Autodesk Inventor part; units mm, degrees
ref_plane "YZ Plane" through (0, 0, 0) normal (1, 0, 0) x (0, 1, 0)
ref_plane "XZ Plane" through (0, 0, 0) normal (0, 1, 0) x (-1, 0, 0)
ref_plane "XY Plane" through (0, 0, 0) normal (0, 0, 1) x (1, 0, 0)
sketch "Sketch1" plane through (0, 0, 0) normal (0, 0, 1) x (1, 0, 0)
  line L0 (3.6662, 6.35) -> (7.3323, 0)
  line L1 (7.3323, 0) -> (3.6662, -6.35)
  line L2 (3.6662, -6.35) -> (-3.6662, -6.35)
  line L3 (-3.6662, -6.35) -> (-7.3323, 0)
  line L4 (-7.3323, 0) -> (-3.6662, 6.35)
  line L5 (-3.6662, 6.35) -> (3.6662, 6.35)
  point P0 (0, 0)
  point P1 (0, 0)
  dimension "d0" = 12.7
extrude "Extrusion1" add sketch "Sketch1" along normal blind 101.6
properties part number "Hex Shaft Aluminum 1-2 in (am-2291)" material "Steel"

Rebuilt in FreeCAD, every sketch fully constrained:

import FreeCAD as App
import Part
import Sketcher
Q = App.Units.Quantity


def add_polygon(sketch, points):
    """Adds a closed chain of lines whose ends are joined by coincident constraints."""
    first, n = sketch.GeometryCount, len(points)
    for a, b in zip(points, points[1:] + points[:1]):
        sketch.addGeometry(Part.LineSegment(App.Vector(*a, 0), App.Vector(*b, 0)), False)
    for i in range(n):
        sketch.addConstraint(Sketcher.Constraint("Coincident", first + i, 2, first + (i + 1) % n, 1))

doc = App.newDocument("Part")
params = doc.addObject("Spreadsheet::Sheet", "Params")
for row, (alias, value) in enumerate([
    ("pad1_length", "4 in"),
], start=1):
    params.set(f"A{row}", alias)
    params.set(f"B{row}", "=" + value)
    params.setAlias(f"B{row}", alias)

body = doc.addObject("PartDesign::Body", "Body")

# Sketch on XY plane
sketch1 = body.newObject("Sketcher::SketchObject", "Sketch")
sketch1.AttachmentSupport = (doc.getObject("XY_Plane"), [""])
sketch1.MapMode = "FlatFace"
add_polygon(sketch1, [(7.3323, 0), (3.6662, 6.35), (-3.6662, 6.35), (-7.3323, 0), (-3.6662, -6.35), (3.6662, -6.35)])  # lines 0-5
sketch1.addConstraint(Sketcher.Constraint("Horizontal", 1))
sketch1.addConstraint(Sketcher.Constraint("Horizontal", 4))
sketch1.addConstraint(Sketcher.Constraint("Symmetric", 0, 2, 3, 2, -1, 1))
sketch1.addConstraint(Sketcher.Constraint("Symmetric", 2, 2, 5, 2, -1, 1))
sketch1.addConstraint(Sketcher.Constraint("PointOnObject", 2, 2, -1))
sketch1.addConstraint(Sketcher.Constraint("Parallel", 2, 5))
sketch1.addConstraint(Sketcher.Constraint("Vertical", 1, 2, 3, 2))
sketch1.addConstraint(Sketcher.Constraint("DistanceY", 3, 2, 1, 2, Q("0.5 in")))
sketch1.addConstraint(Sketcher.Constraint("Angle", 0, Q("119.9995 deg")))
sketch1.addConstraint(Sketcher.Constraint("DistanceX", 2, 2, 0, 2, Q("0.433 in")))
pad1 = body.newObject("PartDesign::Pad", "Pad")
pad1.Profile = sketch1
pad1.setExpression("Length", "Params.pad1_length")

doc.recompute()
